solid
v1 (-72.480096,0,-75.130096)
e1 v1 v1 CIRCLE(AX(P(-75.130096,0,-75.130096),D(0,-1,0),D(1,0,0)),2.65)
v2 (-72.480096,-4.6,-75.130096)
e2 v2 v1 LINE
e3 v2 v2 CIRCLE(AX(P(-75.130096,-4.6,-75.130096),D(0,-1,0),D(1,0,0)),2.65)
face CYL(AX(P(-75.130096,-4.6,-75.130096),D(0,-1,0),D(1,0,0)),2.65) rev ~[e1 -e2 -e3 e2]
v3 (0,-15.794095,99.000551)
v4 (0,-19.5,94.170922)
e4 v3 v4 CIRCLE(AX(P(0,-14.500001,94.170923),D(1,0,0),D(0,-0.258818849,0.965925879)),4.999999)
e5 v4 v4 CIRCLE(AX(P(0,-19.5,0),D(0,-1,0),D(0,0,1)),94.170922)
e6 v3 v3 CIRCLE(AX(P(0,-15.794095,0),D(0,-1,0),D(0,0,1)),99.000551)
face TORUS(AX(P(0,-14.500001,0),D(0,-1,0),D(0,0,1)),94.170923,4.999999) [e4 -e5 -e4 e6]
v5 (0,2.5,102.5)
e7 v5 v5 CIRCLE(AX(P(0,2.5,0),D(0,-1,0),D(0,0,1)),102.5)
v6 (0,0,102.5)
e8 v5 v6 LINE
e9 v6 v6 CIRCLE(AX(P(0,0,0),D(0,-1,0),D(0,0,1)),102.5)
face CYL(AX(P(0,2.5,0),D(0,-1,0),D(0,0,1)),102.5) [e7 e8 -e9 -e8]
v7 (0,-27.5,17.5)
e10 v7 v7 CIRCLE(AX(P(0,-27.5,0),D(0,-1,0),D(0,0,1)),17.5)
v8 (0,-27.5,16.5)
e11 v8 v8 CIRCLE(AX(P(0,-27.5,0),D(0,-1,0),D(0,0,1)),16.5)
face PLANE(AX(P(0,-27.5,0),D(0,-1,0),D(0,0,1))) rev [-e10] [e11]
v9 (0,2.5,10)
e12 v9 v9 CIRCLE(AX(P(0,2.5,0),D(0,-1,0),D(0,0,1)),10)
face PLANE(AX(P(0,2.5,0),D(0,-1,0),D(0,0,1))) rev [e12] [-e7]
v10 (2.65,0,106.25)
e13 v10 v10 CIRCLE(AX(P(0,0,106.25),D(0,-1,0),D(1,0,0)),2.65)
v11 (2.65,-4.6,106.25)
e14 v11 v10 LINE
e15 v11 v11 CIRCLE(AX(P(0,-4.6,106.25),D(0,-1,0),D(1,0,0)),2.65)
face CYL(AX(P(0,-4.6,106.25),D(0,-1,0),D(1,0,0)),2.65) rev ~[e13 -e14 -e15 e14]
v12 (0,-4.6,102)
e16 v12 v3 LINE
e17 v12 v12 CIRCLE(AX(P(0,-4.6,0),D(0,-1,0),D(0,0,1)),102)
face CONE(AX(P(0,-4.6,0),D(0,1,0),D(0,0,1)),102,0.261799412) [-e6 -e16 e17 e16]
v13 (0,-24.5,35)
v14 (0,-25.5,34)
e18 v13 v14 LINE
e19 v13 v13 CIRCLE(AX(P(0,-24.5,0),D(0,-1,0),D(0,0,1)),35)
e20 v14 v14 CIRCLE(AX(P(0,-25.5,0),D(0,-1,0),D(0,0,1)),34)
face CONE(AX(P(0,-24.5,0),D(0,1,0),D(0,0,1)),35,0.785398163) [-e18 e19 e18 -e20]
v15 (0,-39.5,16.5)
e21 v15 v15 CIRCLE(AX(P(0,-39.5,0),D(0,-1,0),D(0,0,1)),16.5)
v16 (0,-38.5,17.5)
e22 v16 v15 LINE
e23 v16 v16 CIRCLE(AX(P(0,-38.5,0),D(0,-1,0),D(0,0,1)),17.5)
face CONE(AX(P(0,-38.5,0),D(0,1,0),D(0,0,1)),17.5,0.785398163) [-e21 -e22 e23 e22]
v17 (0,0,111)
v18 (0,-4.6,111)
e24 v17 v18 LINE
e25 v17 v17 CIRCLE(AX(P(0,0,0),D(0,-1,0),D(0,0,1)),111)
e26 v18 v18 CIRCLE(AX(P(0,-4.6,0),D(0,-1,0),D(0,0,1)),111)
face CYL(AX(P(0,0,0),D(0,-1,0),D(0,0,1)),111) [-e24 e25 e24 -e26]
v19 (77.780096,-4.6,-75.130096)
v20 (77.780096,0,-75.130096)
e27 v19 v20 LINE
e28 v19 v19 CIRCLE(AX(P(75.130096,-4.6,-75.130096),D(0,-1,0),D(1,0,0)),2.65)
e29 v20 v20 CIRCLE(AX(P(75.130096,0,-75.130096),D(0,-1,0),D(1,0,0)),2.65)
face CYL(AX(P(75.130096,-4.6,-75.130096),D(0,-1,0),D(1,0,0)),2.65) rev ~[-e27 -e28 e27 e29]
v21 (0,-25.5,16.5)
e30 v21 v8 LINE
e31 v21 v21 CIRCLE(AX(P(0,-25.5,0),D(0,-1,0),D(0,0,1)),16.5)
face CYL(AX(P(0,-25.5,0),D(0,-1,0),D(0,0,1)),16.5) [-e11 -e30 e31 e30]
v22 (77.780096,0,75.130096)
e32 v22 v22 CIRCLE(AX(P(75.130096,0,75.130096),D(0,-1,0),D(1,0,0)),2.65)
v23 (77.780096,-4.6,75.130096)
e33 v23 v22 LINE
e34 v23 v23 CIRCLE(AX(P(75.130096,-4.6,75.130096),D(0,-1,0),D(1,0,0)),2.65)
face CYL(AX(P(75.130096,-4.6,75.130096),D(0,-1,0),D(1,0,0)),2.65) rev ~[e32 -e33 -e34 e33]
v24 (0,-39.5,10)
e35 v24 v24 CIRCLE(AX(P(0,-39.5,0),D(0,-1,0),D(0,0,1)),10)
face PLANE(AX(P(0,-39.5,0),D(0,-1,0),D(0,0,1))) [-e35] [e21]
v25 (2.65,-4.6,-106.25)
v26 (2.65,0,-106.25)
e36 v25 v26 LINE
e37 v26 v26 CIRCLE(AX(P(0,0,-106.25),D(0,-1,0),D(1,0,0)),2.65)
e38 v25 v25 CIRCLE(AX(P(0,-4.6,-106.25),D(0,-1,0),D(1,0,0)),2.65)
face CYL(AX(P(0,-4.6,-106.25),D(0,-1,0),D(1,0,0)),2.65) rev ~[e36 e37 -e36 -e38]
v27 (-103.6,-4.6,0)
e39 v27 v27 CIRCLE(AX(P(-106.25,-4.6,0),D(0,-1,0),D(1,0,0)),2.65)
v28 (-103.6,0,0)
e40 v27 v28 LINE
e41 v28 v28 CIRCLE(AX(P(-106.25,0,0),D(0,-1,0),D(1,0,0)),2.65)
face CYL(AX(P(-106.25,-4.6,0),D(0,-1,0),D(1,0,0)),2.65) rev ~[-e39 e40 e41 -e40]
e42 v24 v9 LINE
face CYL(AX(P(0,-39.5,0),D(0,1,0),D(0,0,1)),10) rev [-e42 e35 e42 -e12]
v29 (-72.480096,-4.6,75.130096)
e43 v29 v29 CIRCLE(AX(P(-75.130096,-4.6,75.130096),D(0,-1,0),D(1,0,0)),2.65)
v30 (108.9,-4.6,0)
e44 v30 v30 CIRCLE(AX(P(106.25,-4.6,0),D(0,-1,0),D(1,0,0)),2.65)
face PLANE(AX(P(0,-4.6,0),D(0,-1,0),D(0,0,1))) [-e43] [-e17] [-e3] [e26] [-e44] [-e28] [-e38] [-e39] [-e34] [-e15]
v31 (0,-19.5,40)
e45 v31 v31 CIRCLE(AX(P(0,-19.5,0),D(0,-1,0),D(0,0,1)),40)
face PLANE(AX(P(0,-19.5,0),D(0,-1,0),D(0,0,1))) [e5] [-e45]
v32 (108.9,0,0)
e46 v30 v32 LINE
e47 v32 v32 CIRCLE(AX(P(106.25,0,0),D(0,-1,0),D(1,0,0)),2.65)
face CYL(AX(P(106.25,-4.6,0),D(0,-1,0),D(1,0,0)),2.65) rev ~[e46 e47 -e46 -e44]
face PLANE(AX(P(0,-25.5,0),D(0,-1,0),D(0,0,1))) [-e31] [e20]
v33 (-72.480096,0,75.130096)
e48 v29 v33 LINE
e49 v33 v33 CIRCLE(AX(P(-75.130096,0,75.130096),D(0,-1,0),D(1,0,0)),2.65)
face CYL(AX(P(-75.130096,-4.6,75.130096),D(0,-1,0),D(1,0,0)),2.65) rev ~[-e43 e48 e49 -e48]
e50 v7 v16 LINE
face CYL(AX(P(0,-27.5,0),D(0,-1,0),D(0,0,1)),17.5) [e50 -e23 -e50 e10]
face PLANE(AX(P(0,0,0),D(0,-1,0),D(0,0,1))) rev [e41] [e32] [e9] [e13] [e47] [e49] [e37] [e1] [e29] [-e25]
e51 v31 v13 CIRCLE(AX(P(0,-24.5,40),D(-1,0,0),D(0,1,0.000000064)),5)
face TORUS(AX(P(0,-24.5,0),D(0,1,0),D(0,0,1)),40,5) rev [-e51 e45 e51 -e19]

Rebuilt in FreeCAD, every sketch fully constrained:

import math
import FreeCAD as App
import Part
import Sketcher
Q = App.Units.Quantity

doc = App.newDocument("Part")
body = doc.addObject("PartDesign::Body", "Body")

sketch1 = doc.addObject("Sketcher::SketchObject", "Sketch")
body.addObject(sketch1)
sketch1.AttachmentSupport = (doc.YZ_Plane, [""])
sketch1.MapMode = "FlatFace"
sketch1.addGeometry([
    Part.LineSegment(App.Vector(2.5, 10, 0), App.Vector(2.5, 102.5, 0)),
    Part.LineSegment(App.Vector(2.5, 102.5, 0), App.Vector(0, 102.5, 0)),
    Part.LineSegment(App.Vector(0, 102.5, 0), App.Vector(0, 111, 0)),
    Part.LineSegment(App.Vector(0, 111, 0), App.Vector(-4.6, 111, 0)),
    Part.LineSegment(App.Vector(-4.6, 111, 0), App.Vector(-4.6, 102, 0)),
    Part.LineSegment(App.Vector(-4.6, 102, 0), App.Vector(-15.794095, 99.000551, 0)),
    Part.ArcOfCircle(Part.Circle(App.Vector(-14.500001, 94.170923, 0), App.Vector(0, 0, 1), 4.999999), math.radians(104.999988), math.radians(180.000007)),
    Part.LineSegment(App.Vector(-19.5, 94.170922, 0), App.Vector(-19.5, 40, 0)),
    Part.ArcOfCircle(Part.Circle(App.Vector(-24.5, 40, 0), App.Vector(0, 0, 1), 5), math.radians(-90.000004), math.radians(0.000004)),
    Part.LineSegment(App.Vector(-24.5, 35, 0), App.Vector(-25.5, 34, 0)),
    Part.LineSegment(App.Vector(-25.5, 34, 0), App.Vector(-25.5, 16.5, 0)),
    Part.LineSegment(App.Vector(-25.5, 16.5, 0), App.Vector(-27.5, 16.5, 0)),
    Part.LineSegment(App.Vector(-27.5, 16.5, 0), App.Vector(-27.5, 17.5, 0)),
    Part.LineSegment(App.Vector(-27.5, 17.5, 0), App.Vector(-38.5, 17.5, 0)),
    Part.LineSegment(App.Vector(-38.5, 17.5, 0), App.Vector(-39.5, 16.5, 0)),
    Part.LineSegment(App.Vector(-39.5, 16.5, 0), App.Vector(-39.5, 10, 0)),
    Part.LineSegment(App.Vector(-39.5, 10, 0), App.Vector(2.5, 10, 0)),
], False)
sketch1.addConstraint([
    Sketcher.Constraint("Coincident", 0, 2, 1, 1),
    Sketcher.Constraint("Coincident", 1, 2, 2, 1),
    Sketcher.Constraint("Coincident", 2, 2, 3, 1),
    Sketcher.Constraint("Coincident", 3, 2, 4, 1),
    Sketcher.Constraint("Coincident", 4, 2, 5, 1),
    Sketcher.Constraint("Tangent", 5, 2, 6, 1),
    Sketcher.Constraint("Tangent", 6, 2, 7, 1),
    Sketcher.Constraint("Tangent", 7, 2, 8, 2),
    Sketcher.Constraint("Coincident", 8, 1, 9, 1),
    Sketcher.Constraint("Coincident", 9, 2, 10, 1),
    Sketcher.Constraint("Coincident", 10, 2, 11, 1),
    Sketcher.Constraint("Coincident", 11, 2, 12, 1),
    Sketcher.Constraint("Coincident", 12, 2, 13, 1),
    Sketcher.Constraint("Coincident", 13, 2, 14, 1),
    Sketcher.Constraint("Coincident", 14, 2, 15, 1),
    Sketcher.Constraint("Coincident", 15, 2, 16, 1),
    Sketcher.Constraint("Coincident", 16, 2, 0, 1),
    Sketcher.Constraint("Vertical", 0),
    Sketcher.Constraint("Horizontal", 1),
    Sketcher.Constraint("Vertical", 2),
    Sketcher.Constraint("Horizontal", 3),
    Sketcher.Constraint("Vertical", 4),
    Sketcher.Constraint("Vertical", 7),
    Sketcher.Constraint("Vertical", 10),
    Sketcher.Constraint("Horizontal", 11),
    Sketcher.Constraint("Vertical", 12),
    Sketcher.Constraint("Horizontal", 13),
    Sketcher.Constraint("Vertical", 15),
    Sketcher.Constraint("Horizontal", 16),
    Sketcher.Constraint("Equal", 6, 8),
    Sketcher.Constraint("PointOnObject", 1, 2, -2),
    Sketcher.Constraint("Parallel", 9, 14),
    Sketcher.Constraint("Horizontal", 11, 2, 14, 2),
    Sketcher.Constraint("Equal", 9, 14),
    Sketcher.Constraint("Radius", 6, 4.999999),
    Sketcher.Constraint("DistanceX", 11, 2, 11, 1, 2.0),
    Sketcher.Constraint("DistanceX", 13, 2, 13, 1, 11.0),
    Sketcher.Constraint("DistanceX", 16, 1, 16, 2, 42.0),
    Sketcher.Constraint("DistanceY", 4, 2, 4, 1, 9.0),
    Sketcher.Constraint("DistanceY", 12, 1, 12, 2, 1.0),
    Sketcher.Constraint("Angle", 5, Q("-164.999999 deg")),
    Sketcher.Constraint("Angle", 9, Q("-135 deg")),
    Sketcher.Constraint("DistanceX", 1, 2, 1, 1, 2.5),
    Sketcher.Constraint("DistanceX", 3, 2, 3, 1, 4.6),
    Sketcher.Constraint("DistanceY", 0, 1, 0, 2, 92.5),
    Sketcher.Constraint("DistanceY", 2, 1, 2, 2, 8.5),
    Sketcher.Constraint("DistanceY", 10, 2, 10, 1, 17.5),
    Sketcher.Constraint("DistanceY", 15, 2, 15, 1, 6.5),
    Sketcher.Constraint("DistanceY", -1, 1, 8, 3, 40.0),
    Sketcher.Constraint("DistanceX", 6, 3, 0, 2, 17.000001),
])
revolution = doc.addObject("PartDesign::Revolution", "Revolution")
body.addObject(revolution)
revolution.Profile = sketch1
revolution.ReferenceAxis = (sketch1, ["H_Axis"])
revolution.Angle = 360

sketch2 = doc.addObject("Sketcher::SketchObject", "Sketch001")
body.addObject(sketch2)
sketch2.AttachmentSupport = (doc.XZ_Plane, [""])
sketch2.MapMode = "FlatFace"
sketch2.AttachmentOffset = App.Placement(App.Vector(0, 0, 4.6), App.Rotation())
sketch2.addGeometry([
    Part.Circle(App.Vector(-106.25, 0, 0), App.Vector(0, 0, 1), 2.65),
    Part.Circle(App.Vector(-75.130096, -75.130096, 0), App.Vector(0, 0, 1), 2.65),
    Part.Circle(App.Vector(0, -106.25, 0), App.Vector(0, 0, 1), 2.65),
    Part.Circle(App.Vector(75.130096, -75.130096, 0), App.Vector(0, 0, 1), 2.65),
    Part.Circle(App.Vector(106.25, 0, 0), App.Vector(0, 0, 1), 2.65),
    Part.Circle(App.Vector(75.130096, 75.130096, 0), App.Vector(0, 0, 1), 2.65),
    Part.Circle(App.Vector(0, 106.25, 0), App.Vector(0, 0, 1), 2.65),
    Part.Circle(App.Vector(-75.130096, 75.130096, 0), App.Vector(0, 0, 1), 2.65),
], False)
sketch2.addConstraint([
    Sketcher.Constraint("Equal", 0, 1),
    Sketcher.Constraint("Equal", 1, 2),
    Sketcher.Constraint("Equal", 2, 3),
    Sketcher.Constraint("Equal", 3, 4),
    Sketcher.Constraint("Equal", 4, 5),
    Sketcher.Constraint("Equal", 5, 6),
    Sketcher.Constraint("Equal", 6, 7),
    Sketcher.Constraint("Symmetric", 0, 3, 4, 3, -1, 1),
    Sketcher.Constraint("Symmetric", 1, 3, 5, 3, -1, 1),
    Sketcher.Constraint("Symmetric", 2, 3, 6, 3, -1, 1),
    Sketcher.Constraint("Symmetric", 3, 3, 7, 3, -1, 1),
    Sketcher.Constraint("Symmetric", 1, 3, 3, 3, -2),
    Sketcher.Constraint("PointOnObject", 0, 3, -1),
    Sketcher.Constraint("PointOnObject", 2, 3, -2),
    Sketcher.Constraint("Diameter", 0, 5.3),
    Sketcher.Constraint("DistanceX", 0, 3, 4, 3, 212.5),
    Sketcher.Constraint("DistanceY", 2, 3, -1, 1, 106.25),
    Sketcher.Constraint("DistanceX", 1, 3, 3, 3, 150.260192),
    Sketcher.Constraint("DistanceY", 3, 3, 5, 3, 150.260192),
])
pocket1 = doc.addObject("PartDesign::Pocket", "Pocket")
body.addObject(pocket1)
pocket1.Profile = sketch2
pocket1.Type = "ThroughAll"

doc.recompute()
